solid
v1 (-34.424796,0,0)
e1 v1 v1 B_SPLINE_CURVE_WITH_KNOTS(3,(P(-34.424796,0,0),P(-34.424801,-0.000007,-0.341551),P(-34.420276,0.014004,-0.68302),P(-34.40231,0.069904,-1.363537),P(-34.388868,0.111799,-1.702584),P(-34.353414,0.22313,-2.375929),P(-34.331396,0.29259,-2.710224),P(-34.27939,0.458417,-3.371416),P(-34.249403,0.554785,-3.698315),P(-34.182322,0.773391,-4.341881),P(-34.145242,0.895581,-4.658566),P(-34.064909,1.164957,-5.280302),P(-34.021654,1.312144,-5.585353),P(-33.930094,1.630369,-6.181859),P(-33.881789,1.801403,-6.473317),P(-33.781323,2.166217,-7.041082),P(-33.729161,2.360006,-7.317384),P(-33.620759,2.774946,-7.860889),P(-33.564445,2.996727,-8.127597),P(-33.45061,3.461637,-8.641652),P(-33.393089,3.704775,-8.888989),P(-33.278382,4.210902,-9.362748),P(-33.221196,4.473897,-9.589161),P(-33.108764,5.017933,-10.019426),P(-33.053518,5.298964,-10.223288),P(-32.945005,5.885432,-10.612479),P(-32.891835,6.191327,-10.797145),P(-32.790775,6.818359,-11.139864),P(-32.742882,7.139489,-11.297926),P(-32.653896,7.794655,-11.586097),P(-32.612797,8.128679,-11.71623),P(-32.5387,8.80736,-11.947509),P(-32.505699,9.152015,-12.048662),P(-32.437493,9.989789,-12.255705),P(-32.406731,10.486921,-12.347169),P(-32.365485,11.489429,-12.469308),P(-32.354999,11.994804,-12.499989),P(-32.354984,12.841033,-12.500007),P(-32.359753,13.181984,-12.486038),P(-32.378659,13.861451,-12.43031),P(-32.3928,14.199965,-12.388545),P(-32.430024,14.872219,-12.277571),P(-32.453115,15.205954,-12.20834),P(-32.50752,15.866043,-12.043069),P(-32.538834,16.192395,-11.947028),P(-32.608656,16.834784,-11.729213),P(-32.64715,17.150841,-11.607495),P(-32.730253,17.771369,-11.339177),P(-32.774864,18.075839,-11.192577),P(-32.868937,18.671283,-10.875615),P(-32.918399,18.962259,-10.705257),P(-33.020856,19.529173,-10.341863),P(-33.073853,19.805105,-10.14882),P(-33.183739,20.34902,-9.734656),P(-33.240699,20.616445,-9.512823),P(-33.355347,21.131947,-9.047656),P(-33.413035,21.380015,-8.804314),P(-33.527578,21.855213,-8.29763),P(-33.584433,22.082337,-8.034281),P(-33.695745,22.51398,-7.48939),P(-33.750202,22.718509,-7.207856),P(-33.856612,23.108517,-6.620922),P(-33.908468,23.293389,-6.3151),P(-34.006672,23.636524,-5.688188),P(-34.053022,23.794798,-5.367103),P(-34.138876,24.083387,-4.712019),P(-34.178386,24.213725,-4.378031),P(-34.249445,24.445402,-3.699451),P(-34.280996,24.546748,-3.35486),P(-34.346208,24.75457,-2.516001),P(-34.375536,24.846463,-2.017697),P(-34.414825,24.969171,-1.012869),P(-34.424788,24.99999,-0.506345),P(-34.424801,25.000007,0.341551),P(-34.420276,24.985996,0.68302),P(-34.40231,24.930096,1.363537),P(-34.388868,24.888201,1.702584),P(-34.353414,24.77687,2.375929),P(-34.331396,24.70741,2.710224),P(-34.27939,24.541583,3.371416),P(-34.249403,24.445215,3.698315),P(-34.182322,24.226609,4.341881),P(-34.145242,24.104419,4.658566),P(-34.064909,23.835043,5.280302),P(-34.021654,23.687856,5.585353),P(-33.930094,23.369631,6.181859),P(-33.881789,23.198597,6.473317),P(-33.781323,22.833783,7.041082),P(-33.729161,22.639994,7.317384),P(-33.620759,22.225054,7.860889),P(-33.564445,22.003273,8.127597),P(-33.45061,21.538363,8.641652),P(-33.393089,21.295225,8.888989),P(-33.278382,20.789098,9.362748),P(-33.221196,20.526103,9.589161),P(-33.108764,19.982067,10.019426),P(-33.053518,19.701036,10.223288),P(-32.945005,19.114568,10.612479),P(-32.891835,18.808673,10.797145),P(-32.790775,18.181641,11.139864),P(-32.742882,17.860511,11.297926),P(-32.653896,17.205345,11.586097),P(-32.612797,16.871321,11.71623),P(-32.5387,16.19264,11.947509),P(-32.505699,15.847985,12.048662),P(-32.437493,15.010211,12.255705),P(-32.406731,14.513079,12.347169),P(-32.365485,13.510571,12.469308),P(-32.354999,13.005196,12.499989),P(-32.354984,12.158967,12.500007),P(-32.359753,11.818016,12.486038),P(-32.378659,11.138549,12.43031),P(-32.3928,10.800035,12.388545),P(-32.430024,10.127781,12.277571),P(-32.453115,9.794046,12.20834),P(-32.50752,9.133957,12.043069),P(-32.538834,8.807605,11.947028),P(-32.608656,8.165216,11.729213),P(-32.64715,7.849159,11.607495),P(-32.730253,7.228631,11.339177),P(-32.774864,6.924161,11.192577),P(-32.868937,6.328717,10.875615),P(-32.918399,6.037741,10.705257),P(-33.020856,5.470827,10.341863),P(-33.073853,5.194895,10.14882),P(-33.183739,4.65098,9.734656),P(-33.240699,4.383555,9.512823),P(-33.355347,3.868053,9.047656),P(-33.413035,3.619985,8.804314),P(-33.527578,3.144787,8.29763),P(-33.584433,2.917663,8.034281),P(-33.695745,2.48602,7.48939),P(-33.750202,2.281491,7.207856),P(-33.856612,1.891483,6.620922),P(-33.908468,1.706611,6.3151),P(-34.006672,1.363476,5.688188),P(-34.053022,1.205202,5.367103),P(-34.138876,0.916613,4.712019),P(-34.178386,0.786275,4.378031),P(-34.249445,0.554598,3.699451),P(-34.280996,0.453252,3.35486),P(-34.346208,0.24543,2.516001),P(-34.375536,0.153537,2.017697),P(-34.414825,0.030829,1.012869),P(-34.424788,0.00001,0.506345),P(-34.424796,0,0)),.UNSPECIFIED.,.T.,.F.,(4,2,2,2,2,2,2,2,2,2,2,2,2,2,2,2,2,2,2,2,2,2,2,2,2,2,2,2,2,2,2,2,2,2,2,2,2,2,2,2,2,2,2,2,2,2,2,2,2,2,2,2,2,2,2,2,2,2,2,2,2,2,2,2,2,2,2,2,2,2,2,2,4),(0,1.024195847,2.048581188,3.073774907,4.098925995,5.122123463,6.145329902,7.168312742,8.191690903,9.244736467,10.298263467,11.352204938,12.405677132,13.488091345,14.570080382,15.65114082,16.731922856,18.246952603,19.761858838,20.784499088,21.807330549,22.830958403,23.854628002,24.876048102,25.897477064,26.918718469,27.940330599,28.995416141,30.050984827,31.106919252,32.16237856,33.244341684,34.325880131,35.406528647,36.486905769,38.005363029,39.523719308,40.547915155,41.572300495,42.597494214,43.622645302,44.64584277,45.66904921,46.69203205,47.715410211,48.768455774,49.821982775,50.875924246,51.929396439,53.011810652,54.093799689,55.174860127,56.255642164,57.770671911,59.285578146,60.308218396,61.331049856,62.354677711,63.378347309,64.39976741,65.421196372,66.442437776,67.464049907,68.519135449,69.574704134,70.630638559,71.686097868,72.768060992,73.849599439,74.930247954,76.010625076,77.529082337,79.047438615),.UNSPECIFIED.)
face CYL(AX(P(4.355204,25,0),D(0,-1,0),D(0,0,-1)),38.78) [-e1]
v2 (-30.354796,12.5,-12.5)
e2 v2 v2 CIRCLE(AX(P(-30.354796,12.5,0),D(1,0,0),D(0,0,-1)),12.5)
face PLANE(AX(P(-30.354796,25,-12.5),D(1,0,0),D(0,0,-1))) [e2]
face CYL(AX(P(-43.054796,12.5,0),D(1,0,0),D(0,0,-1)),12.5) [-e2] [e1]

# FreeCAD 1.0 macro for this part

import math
import FreeCAD as App
import Part
import Sketcher

doc = App.newDocument("Part")
body = doc.addObject("PartDesign::Body", "Body")

# Sketch on XZ plane
sketch1 = body.newObject("Sketcher::SketchObject", "Sketch")
sketch1.AttachmentSupport = (doc.getObject("XZ_Plane"), [""])
sketch1.MapMode = "FlatFace"
sketch1.addGeometry([
    Part.LineSegment(App.Vector(-30.4, -12.5, 0), App.Vector(-32.4, -12.5, 0)),
    Part.ArcOfCircle(Part.Circle(App.Vector(4.4, 0, 0), App.Vector(0, 0, 1), 38.8), math.radians(161), math.radians(199)),
    Part.LineSegment(App.Vector(-32.4, 12.5, 0), App.Vector(-30.4, 12.5, 0)),
    Part.LineSegment(App.Vector(-30.4, 12.5, 0), App.Vector(-30.4, -12.5, 0)),
], False)
sketch1.addConstraint([
    Sketcher.Constraint("Coincident", 0, 2, 1, 2),
    Sketcher.Constraint("Coincident", 1, 1, 2, 1),
    Sketcher.Constraint("Coincident", 2, 2, 3, 1),
    Sketcher.Constraint("Coincident", 3, 2, 0, 1),
    Sketcher.Constraint("Horizontal", 0),
    Sketcher.Constraint("Horizontal", 2),
    Sketcher.Constraint("Vertical", 3),
    Sketcher.Constraint("Symmetric", 0, 2, 1, 1, -1),
    Sketcher.Constraint("DistanceY", 3, 2, 3, 1, 25.0),
    Sketcher.Constraint("Radius", 1, 38.78),
    Sketcher.Constraint("DistanceX", 2, 2, 1, 3, 34.71),
    Sketcher.Constraint("DistanceX", 0, 2, -1, 1, 32.35499),
])
pad1 = body.newObject("PartDesign::Pad", "Pad")
pad1.Profile = sketch1
pad1.Length = 25
pad1.Reversed = True

# Sketch on YZ plane
sketch2 = body.newObject("Sketcher::SketchObject", "Sketch001")
sketch2.AttachmentSupport = (doc.getObject("YZ_Plane"), [""])
sketch2.MapMode = "FlatFace"
sketch2.AttachmentOffset = App.Placement(App.Vector(0, 0, -30.354796), App.Rotation())
sketch2.addGeometry([
    Part.LineSegment(App.Vector(25, 12, 0), App.Vector(12, 12, 0)),  # 0
    Part.ArcOfCircle(Part.Circle(App.Vector(13, 0, 0), App.Vector(0, 0, 1), 12), math.radians(0), math.radians(90)),  # 1
    Part.LineSegment(App.Vector(25, 0, 0), App.Vector(25, 12, 0)),  # 2
    Part.ArcOfCircle(Part.Circle(App.Vector(13, 0, 0), App.Vector(0, 0, 1), 12), math.radians(-90), math.radians(0)),  # 3
    Part.LineSegment(App.Vector(12, -12, 0), App.Vector(25, -12, 0)),  # 4
    Part.LineSegment(App.Vector(25, -12, 0), App.Vector(25, 0, 0)),  # 5
    Part.ArcOfCircle(Part.Circle(App.Vector(12, 0, 0), App.Vector(0, 0, 1), 12), math.radians(180), math.radians(270)),  # 6
    Part.LineSegment(App.Vector(0, 0, 0), App.Vector(0, -12, 0)),  # 7
    Part.LineSegment(App.Vector(0, -12, 0), App.Vector(12, -12, 0)),  # 8
    Part.LineSegment(App.Vector(12, 12, 0), App.Vector(0, 12, 0)),  # 9
    Part.LineSegment(App.Vector(0, 12, 0), App.Vector(0, 0, 0)),  # 10
    Part.ArcOfCircle(Part.Circle(App.Vector(12, 0, 0), App.Vector(0, 0, 1), 12), math.radians(90), math.radians(180)),  # 11
], False)
sketch2.addConstraint([
    Sketcher.Constraint("Tangent", 0, 2, 1, 2),
    Sketcher.Constraint("Tangent", 1, 1, 2, 1),
    Sketcher.Constraint("Coincident", 2, 2, 0, 1),
    Sketcher.Constraint("Tangent", 3, 1, 4, 1),
    Sketcher.Constraint("Coincident", 4, 2, 5, 1),
    Sketcher.Constraint("Tangent", 5, 2, 3, 2),
    Sketcher.Constraint("Tangent", 6, 1, 7, 1),
    Sketcher.Constraint("Coincident", 7, 2, 8, 1),
    Sketcher.Constraint("Tangent", 8, 2, 6, 2),
    Sketcher.Constraint("Coincident", 9, 2, 10, 1),
    Sketcher.Constraint("Tangent", 10, 2, 11, 2),
    Sketcher.Constraint("Tangent", 11, 1, 9, 1),
    Sketcher.Constraint("Horizontal", 0),
    Sketcher.Constraint("Vertical", 2),
    Sketcher.Constraint("Horizontal", 4),
    Sketcher.Constraint("Vertical", 5),
    Sketcher.Constraint("Vertical", 7),
    Sketcher.Constraint("Horizontal", 8),
    Sketcher.Constraint("Horizontal", 9),
    Sketcher.Constraint("Vertical", 10),
    Sketcher.Constraint("Coincident", 6, 1, -1, 1),
    Sketcher.Constraint("Coincident", 10, 2, -1, 1),
    Sketcher.Constraint("Coincident", 3, 3, 1, 3),
    Sketcher.Constraint("Coincident", 6, 3, 1, 3),
    Sketcher.Constraint("Coincident", 11, 1, 0, 2),
    Sketcher.Constraint("Equal", 1, 3),
    Sketcher.Constraint("Radius", 1, 12.5),
])
pocket1 = body.newObject("PartDesign::Pocket", "Pocket")
pocket1.Profile = sketch2
pocket1.Length = 12.7

doc.recompute()
